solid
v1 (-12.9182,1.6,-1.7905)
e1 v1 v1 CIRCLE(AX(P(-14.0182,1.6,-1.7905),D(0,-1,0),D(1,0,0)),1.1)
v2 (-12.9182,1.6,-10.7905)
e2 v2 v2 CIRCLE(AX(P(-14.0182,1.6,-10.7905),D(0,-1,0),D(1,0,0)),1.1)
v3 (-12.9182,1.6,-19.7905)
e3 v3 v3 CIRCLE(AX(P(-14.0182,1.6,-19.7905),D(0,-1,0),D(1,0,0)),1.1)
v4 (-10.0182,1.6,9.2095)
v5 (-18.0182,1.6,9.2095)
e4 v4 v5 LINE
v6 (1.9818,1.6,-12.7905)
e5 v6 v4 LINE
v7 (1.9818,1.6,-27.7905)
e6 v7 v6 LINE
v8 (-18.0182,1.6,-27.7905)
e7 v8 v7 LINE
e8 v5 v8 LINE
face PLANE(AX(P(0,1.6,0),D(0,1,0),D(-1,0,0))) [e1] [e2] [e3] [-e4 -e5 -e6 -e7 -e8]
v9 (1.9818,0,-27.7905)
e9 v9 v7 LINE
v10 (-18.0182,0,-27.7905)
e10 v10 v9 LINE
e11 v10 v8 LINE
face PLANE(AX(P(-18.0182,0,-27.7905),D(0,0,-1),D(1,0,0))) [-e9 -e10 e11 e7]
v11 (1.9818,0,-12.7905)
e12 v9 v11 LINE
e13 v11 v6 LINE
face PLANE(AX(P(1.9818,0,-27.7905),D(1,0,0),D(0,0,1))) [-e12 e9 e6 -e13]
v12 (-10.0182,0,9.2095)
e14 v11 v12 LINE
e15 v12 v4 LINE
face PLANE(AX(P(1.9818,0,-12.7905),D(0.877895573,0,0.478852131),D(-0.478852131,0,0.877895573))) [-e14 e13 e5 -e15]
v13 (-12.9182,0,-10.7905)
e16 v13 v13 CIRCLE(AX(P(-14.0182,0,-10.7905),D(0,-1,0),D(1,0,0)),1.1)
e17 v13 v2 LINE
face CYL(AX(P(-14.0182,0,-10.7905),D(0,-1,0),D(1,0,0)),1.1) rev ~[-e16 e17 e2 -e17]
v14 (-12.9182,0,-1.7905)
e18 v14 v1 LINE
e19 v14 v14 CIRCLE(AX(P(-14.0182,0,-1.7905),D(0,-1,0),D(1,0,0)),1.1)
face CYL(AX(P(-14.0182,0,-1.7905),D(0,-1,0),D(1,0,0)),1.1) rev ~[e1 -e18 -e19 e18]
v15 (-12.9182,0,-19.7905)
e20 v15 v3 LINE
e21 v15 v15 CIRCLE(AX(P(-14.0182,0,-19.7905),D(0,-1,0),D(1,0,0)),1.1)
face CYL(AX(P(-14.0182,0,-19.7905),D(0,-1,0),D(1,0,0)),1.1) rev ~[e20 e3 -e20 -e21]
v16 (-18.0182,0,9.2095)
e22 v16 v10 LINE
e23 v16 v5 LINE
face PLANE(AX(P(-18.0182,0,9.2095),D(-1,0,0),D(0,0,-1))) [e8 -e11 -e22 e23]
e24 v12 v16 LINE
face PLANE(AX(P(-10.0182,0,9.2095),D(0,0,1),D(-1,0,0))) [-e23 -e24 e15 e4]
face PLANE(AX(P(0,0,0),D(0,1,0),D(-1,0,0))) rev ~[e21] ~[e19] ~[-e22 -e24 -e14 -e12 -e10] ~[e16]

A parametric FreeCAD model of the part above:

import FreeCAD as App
import Part
import Sketcher
from FreeCAD import Vector
Q = App.Units.Quantity


def add_polygon(sketch, points):
    """Adds a closed chain of lines whose ends are joined by coincident constraints."""
    first, n = sketch.GeometryCount, len(points)
    for a, b in zip(points, points[1:] + points[:1]):
        sketch.addGeometry(Part.LineSegment(App.Vector(*a, 0), App.Vector(*b, 0)), False)
    for i in range(n):
        sketch.addConstraint(Sketcher.Constraint("Coincident", first + i, 2, first + (i + 1) % n, 1))

doc = App.newDocument("Part")
body = doc.addObject("PartDesign::Body", "Body")

# Sketch on XZ plane
sketch1 = body.newObject("Sketcher::SketchObject", "Sketch")
sketch1.AttachmentSupport = (doc.getObject("XZ_Plane"), [""])
sketch1.MapMode = "FlatFace"
add_polygon(sketch1, [(-18, -28), (-18, 9), (-10, 9), (2, -13), (2, -28)])  # lines 0-4
sketch1.addConstraint([
    Sketcher.Constraint("Vertical", 0),
    Sketcher.Constraint("Horizontal", 1),
    Sketcher.Constraint("Vertical", 3),
    Sketcher.Constraint("Horizontal", 4),
    Sketcher.Constraint("DistanceX", 1, 1, 1, 2, Q("8 mm")),
    Sketcher.Constraint("DistanceX", 4, 2, 4, 1, Q("20 mm")),
    Sketcher.Constraint("DistanceY", 0, 1, 0, 2, Q("37 mm")),
    Sketcher.Constraint("DistanceY", 3, 2, 3, 1, Q("15 mm")),
    Sketcher.Constraint("DistanceX", 0, 2, -1, 1, Q("18.0182 mm")),
    Sketcher.Constraint("DistanceY", -1, 1, 0, 2, Q("9.2095 mm")),
])
pad1 = body.newObject("PartDesign::Pad", "Pad")
pad1.Profile = sketch1
pad1.Length = 1.6
pad1.Reversed = True

# Sketch on XZ plane
sketch2 = body.newObject("Sketcher::SketchObject", "Sketch001")
sketch2.AttachmentSupport = (doc.getObject("XZ_Plane"), [""])
sketch2.MapMode = "FlatFace"
sketch2.addGeometry([
    Part.Circle(Vector(-14, -10.8, 0), Vector(0, 0, 1), 1.1),
    Part.Circle(Vector(-14, -19.8, 0), Vector(0, 0, 1), 1.1),
    Part.Circle(Vector(-14, -1.8, 0), Vector(0, 0, 1), 1.1),
], False)
sketch2.addConstraint([
    Sketcher.Constraint("Equal", 0, 1),
    Sketcher.Constraint("Equal", 1, 2),
    Sketcher.Constraint("Vertical", 0, 3, 1, 3),
    Sketcher.Constraint("Vertical", 1, 3, 2, 3),
    Sketcher.Constraint("Diameter", 0, Q("2.2 mm")),
    Sketcher.Constraint("DistanceY", 1, 3, 0, 3, Q("9 mm")),
    Sketcher.Constraint("DistanceY", 0, 3, 2, 3, Q("9 mm")),
    Sketcher.Constraint("DistanceX", 0, 3, -1, 1, Q("14.0182 mm")),
    Sketcher.Constraint("DistanceY", 0, 3, -1, 1, Q("10.7905 mm")),
])
pocket1 = body.newObject("PartDesign::Pocket", "Pocket")
pocket1.Profile = sketch2
pocket1.Type = "ThroughAll"

doc.recompute()
